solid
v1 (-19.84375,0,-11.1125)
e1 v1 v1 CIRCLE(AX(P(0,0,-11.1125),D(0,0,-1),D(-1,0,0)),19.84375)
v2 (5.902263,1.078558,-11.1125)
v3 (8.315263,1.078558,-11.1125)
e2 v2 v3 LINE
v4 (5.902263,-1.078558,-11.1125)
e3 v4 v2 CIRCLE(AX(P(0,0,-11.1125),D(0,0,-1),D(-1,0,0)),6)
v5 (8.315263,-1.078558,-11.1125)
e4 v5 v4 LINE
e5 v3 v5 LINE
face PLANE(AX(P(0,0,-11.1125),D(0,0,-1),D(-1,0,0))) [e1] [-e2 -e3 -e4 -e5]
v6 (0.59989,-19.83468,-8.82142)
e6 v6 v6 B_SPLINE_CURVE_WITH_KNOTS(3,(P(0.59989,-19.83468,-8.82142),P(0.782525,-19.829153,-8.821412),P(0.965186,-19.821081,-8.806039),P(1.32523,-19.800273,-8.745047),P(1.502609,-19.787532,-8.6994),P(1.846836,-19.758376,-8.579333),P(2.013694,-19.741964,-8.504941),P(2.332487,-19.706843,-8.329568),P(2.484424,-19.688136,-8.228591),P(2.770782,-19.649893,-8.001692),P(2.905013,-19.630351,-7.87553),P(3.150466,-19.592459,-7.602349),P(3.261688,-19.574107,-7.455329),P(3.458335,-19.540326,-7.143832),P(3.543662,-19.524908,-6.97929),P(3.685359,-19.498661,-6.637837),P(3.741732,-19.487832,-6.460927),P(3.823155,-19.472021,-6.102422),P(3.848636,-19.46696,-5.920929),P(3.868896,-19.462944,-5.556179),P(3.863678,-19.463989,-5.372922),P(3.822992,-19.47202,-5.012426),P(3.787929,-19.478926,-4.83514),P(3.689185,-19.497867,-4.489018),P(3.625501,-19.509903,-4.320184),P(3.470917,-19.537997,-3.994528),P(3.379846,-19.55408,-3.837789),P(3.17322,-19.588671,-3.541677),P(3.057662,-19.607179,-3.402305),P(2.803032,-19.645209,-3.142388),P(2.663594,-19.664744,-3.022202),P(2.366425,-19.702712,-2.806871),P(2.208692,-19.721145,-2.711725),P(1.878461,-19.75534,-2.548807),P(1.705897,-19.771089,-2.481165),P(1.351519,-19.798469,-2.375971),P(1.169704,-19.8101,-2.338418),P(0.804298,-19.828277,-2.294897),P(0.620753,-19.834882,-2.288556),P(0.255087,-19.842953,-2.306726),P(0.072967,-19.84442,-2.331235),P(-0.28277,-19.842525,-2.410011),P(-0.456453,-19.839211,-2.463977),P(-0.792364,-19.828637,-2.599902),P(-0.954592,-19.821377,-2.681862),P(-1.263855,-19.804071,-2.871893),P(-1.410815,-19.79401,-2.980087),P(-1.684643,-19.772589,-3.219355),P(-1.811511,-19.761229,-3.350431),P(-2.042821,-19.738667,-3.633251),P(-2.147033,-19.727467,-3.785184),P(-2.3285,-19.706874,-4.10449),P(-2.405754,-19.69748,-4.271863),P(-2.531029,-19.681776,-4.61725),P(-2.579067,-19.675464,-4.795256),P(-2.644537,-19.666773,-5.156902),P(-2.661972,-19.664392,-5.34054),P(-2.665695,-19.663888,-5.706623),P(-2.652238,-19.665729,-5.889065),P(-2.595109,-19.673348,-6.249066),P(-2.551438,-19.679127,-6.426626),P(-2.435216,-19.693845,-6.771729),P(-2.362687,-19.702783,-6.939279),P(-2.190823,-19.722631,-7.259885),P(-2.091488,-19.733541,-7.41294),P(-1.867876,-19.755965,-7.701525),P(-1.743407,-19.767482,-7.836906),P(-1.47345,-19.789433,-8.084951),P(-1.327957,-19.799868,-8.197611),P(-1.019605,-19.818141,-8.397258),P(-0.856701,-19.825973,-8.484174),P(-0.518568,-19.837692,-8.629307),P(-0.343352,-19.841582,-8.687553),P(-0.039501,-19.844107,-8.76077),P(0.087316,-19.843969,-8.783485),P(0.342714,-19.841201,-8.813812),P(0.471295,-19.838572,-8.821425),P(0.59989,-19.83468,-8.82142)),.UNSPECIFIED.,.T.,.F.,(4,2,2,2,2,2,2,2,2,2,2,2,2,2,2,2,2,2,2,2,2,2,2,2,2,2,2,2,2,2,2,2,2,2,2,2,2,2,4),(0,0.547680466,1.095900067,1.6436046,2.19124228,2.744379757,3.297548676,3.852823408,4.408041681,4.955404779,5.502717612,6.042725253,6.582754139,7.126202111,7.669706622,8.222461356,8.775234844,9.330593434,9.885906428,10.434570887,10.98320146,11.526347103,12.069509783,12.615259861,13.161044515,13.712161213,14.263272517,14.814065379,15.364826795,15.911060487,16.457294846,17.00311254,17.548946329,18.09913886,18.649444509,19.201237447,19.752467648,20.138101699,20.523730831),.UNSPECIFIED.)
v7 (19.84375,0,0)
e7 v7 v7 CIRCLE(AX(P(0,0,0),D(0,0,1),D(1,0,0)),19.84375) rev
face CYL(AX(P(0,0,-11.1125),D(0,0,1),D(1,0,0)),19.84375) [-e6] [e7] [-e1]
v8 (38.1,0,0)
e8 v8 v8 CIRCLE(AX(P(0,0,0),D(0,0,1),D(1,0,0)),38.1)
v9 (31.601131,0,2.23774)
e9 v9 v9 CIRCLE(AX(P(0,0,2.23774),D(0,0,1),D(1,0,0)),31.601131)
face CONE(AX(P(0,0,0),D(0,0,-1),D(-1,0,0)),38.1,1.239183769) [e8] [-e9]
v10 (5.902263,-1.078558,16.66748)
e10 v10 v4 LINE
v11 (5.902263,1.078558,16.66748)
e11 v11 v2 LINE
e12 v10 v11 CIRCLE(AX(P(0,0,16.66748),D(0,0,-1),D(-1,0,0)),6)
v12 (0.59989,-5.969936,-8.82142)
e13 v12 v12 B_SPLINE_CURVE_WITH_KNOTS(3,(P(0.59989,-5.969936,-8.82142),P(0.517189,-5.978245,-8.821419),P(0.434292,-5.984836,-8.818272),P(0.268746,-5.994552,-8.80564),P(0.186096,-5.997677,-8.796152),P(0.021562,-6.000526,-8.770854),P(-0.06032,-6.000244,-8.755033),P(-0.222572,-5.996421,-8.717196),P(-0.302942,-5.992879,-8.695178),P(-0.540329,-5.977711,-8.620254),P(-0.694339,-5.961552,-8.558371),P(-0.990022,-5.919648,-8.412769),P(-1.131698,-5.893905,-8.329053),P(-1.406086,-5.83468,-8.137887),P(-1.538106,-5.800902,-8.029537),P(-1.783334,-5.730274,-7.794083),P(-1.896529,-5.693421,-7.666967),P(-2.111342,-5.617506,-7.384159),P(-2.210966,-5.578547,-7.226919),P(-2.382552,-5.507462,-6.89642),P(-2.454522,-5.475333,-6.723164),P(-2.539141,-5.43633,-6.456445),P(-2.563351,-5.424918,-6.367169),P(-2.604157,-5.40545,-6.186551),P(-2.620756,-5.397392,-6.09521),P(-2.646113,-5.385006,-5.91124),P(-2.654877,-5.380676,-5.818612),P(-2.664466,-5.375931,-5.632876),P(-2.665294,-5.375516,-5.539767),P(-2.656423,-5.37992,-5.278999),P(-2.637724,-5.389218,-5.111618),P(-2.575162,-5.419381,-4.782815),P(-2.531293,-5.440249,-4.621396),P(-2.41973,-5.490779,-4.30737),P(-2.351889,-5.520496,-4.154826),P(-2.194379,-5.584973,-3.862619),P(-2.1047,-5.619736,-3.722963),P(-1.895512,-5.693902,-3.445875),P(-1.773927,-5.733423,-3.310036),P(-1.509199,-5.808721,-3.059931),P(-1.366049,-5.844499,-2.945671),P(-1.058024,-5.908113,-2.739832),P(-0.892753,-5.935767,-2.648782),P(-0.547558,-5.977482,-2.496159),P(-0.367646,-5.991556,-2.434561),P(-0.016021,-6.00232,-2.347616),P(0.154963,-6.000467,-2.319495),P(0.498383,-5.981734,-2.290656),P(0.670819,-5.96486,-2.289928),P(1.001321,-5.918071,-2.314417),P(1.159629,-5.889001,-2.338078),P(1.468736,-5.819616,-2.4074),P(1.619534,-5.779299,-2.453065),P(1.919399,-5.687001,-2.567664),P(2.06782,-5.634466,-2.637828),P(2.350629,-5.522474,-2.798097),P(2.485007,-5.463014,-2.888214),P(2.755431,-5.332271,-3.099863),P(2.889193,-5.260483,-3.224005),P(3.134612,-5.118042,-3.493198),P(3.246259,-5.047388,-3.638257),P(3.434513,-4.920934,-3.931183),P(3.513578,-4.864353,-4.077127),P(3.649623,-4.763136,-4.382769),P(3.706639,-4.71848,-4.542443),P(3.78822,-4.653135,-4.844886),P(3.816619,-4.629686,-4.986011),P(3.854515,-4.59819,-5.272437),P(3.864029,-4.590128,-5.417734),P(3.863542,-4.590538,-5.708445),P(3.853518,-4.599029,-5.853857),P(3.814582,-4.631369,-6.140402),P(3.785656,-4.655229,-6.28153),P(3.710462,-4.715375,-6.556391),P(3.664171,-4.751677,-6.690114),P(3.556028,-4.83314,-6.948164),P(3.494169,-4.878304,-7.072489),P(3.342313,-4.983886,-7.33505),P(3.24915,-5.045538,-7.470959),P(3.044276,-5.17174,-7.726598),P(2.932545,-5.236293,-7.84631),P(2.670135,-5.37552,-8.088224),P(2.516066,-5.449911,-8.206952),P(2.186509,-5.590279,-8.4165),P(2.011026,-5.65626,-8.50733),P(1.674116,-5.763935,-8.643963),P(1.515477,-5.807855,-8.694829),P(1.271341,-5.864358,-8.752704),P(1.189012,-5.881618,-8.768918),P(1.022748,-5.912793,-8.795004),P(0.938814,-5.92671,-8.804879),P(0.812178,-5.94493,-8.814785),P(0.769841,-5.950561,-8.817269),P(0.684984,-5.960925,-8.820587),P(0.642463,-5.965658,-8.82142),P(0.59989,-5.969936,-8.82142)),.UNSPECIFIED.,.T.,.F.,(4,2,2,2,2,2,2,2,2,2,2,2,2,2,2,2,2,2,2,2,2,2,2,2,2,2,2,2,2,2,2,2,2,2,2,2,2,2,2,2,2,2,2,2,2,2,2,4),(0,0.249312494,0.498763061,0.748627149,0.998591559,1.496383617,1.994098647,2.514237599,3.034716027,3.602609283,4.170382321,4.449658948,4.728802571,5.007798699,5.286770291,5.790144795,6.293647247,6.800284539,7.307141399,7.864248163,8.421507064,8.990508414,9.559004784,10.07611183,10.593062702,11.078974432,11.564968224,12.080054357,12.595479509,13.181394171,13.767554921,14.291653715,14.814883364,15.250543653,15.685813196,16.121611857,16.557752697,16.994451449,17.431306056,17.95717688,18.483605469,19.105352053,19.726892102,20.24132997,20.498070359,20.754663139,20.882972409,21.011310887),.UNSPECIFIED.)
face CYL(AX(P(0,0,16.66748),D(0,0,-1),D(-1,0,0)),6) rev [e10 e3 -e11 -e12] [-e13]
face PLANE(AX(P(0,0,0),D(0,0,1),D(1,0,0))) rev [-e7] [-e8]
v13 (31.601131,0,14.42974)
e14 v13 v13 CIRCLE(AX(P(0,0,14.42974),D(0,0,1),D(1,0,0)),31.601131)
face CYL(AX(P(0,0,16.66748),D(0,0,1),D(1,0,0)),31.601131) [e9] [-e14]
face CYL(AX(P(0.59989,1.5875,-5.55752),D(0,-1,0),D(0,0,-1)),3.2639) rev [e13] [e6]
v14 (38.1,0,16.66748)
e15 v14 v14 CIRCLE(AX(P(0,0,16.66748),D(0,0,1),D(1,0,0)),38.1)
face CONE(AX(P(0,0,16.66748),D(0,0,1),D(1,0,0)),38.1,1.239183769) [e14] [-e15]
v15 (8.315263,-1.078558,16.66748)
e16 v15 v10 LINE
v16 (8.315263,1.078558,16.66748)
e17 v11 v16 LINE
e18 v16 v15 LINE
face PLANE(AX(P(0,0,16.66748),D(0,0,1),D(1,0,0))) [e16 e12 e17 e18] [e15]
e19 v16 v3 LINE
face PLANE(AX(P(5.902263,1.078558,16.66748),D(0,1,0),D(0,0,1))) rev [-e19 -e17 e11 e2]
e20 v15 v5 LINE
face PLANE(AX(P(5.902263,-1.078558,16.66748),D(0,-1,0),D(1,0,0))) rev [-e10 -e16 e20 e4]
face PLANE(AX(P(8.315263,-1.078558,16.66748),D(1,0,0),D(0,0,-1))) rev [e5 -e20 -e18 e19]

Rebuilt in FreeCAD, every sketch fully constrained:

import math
import FreeCAD as App
import Part
import Sketcher
Q = App.Units.Quantity

doc = App.newDocument("Part")
body = doc.addObject("PartDesign::Body", "Body")

sketch1 = body.newObject("Sketcher::SketchObject", "Sketch")
sketch1.AttachmentSupport = (doc.getObject("XY_Plane"), [""])
sketch1.MapMode = "FlatFace"
sketch1.addGeometry(Part.Circle(App.Vector(0, 0, 0), App.Vector(0, 0, 1), 38.1), False)
sketch1.addConstraint([
    Sketcher.Constraint("Coincident", 0, 3, -1, 1),
    Sketcher.Constraint("Diameter", 0, Q("3 in")),
])
pad1 = body.newObject("PartDesign::Pad", "Pad")
pad1.Profile = sketch1
pad1.Length = Q("0.6562 in")

sketch2 = body.newObject("Sketcher::SketchObject", "Sketch001")
sketch2.AttachmentSupport = (doc.getObject("XY_Plane"), [""])
sketch2.MapMode = "FlatFace"
sketch2.addGeometry(Part.Circle(App.Vector(0, 0, 0), App.Vector(0, 0, 1), 19.84375), False)
sketch2.addConstraint([
    Sketcher.Constraint("Coincident", 0, 3, -1, 1),
    Sketcher.Constraint("Diameter", 0, Q("1.5625 in")),
])
pad2 = body.newObject("PartDesign::Pad", "Pad001")
pad2.Profile = sketch2
pad2.Length = Q("0.4375 in")
pad2.Reversed = True

sketch3 = body.newObject("Sketcher::SketchObject", "Sketch002")
sketch3.AttachmentSupport = (doc.getObject("XY_Plane"), [""])
sketch3.MapMode = "FlatFace"
sketch3.AttachmentOffset = App.Placement(App.Vector(0, 0, -0.4375 * 25.4), App.Rotation())
sketch3.addGeometry([
    Part.LineSegment(App.Vector(8.315263, -1.078558, 0), App.Vector(5.902263, -1.078558, 0)),
    Part.ArcOfCircle(Part.Circle(App.Vector(0, 0, 0), App.Vector(0, 0, 1), 6), math.radians(10.355759), math.radians(349.644241)),
    Part.LineSegment(App.Vector(5.902263, 1.078558, 0), App.Vector(8.315263, 1.078558, 0)),
    Part.LineSegment(App.Vector(8.315263, 1.078558, 0), App.Vector(8.315263, -1.078558, 0)),
], False)
sketch3.addConstraint([
    Sketcher.Constraint("Coincident", 0, 2, 1, 2),
    Sketcher.Constraint("Coincident", 1, 1, 2, 1),
    Sketcher.Constraint("Coincident", 2, 2, 3, 1),
    Sketcher.Constraint("Coincident", 3, 2, 0, 1),
    Sketcher.Constraint("Horizontal", 0),
    Sketcher.Constraint("Horizontal", 2),
    Sketcher.Constraint("Vertical", 3),
    Sketcher.Constraint("Coincident", 1, 3, -1, 1),
    Sketcher.Constraint("Vertical", 0, 2, 1, 1),
    Sketcher.Constraint("DistanceX", 0, 2, 0, 1, Q("0.095 in")),
    Sketcher.Constraint("Radius", 1, 6.0),
    Sketcher.Constraint("DistanceY", 3, 2, 3, 1, 2.157116),
])
pocket1 = body.newObject("PartDesign::Pocket", "Pocket")
pocket1.Profile = sketch3
pocket1.Type = "ThroughAll"
pocket1.Reversed = True

sketch4 = body.newObject("Sketcher::SketchObject", "Sketch003")
sketch4.AttachmentSupport = (doc.getObject("XZ_Plane"), [""])
sketch4.MapMode = "FlatFace"
sketch4.AttachmentOffset = App.Placement(App.Vector(0, 0, 0.375 * 25.4), App.Rotation())
sketch4.addGeometry(Part.Circle(App.Vector(0.59989, -5.55752, 0), App.Vector(0, 0, 1), 3.2639), False)
sketch4.addConstraint([
    Sketcher.Constraint("Diameter", 0, Q("0.257 in")),
    Sketcher.Constraint("DistanceY", 0, 3, -1, 1, Q("0.2188 in")),
    Sketcher.Constraint("DistanceX", -1, 1, 0, 3, 0.59989),
])
pocket2 = body.newObject("PartDesign::Pocket", "Pocket001")
pocket2.Profile = sketch4
pocket2.Type = "TwoLengths"
pocket2.Length = Q("0.4375 in")
pocket2.Length2 = Q("0.4375 in")

sketch5 = body.newObject("Sketcher::SketchObject", "Sketch004")
sketch5.AttachmentSupport = (doc.getObject("YZ_Plane"), [""])
sketch5.MapMode = "FlatFace"
sketch5.addGeometry([
    Part.LineSegment(App.Vector(38.1, 0, 0), App.Vector(38.1, 16.66748, 0)),
    Part.LineSegment(App.Vector(38.1, 16.66748, 0), App.Vector(31.601131, 14.42974, 0)),
    Part.LineSegment(App.Vector(31.601131, 14.42974, 0), App.Vector(31.601131, 2.23774, 0)),
    Part.LineSegment(App.Vector(31.601131, 2.23774, 0), App.Vector(38.1, 0, 0)),
], False)
sketch5.addConstraint([
    Sketcher.Constraint("Coincident", 0, 2, 1, 1),
    Sketcher.Constraint("Coincident", 1, 2, 2, 1),
    Sketcher.Constraint("Coincident", 2, 2, 3, 1),
    Sketcher.Constraint("Coincident", 3, 2, 0, 1),
    Sketcher.Constraint("Vertical", 0),
    Sketcher.Constraint("Vertical", 2),
    Sketcher.Constraint("PointOnObject", 3, 2, -1),
    Sketcher.Constraint("Equal", 1, 3),
    Sketcher.Constraint("Angle", 1, Q("-161 deg")),
    Sketcher.Constraint("DistanceY", 2, 2, 2, 1, Q("0.48 in")),
    Sketcher.Constraint("DistanceX", -1, 1, 0, 2, Q("1.5 in")),
    Sketcher.Constraint("DistanceY", 0, 1, 0, 2, Q("0.6562 in")),
])
groove = body.newObject("PartDesign::Groove", "Groove")
groove.Profile = sketch5
groove.ReferenceAxis = (sketch5, ["V_Axis"])
groove.Angle = 360

doc.recompute()
